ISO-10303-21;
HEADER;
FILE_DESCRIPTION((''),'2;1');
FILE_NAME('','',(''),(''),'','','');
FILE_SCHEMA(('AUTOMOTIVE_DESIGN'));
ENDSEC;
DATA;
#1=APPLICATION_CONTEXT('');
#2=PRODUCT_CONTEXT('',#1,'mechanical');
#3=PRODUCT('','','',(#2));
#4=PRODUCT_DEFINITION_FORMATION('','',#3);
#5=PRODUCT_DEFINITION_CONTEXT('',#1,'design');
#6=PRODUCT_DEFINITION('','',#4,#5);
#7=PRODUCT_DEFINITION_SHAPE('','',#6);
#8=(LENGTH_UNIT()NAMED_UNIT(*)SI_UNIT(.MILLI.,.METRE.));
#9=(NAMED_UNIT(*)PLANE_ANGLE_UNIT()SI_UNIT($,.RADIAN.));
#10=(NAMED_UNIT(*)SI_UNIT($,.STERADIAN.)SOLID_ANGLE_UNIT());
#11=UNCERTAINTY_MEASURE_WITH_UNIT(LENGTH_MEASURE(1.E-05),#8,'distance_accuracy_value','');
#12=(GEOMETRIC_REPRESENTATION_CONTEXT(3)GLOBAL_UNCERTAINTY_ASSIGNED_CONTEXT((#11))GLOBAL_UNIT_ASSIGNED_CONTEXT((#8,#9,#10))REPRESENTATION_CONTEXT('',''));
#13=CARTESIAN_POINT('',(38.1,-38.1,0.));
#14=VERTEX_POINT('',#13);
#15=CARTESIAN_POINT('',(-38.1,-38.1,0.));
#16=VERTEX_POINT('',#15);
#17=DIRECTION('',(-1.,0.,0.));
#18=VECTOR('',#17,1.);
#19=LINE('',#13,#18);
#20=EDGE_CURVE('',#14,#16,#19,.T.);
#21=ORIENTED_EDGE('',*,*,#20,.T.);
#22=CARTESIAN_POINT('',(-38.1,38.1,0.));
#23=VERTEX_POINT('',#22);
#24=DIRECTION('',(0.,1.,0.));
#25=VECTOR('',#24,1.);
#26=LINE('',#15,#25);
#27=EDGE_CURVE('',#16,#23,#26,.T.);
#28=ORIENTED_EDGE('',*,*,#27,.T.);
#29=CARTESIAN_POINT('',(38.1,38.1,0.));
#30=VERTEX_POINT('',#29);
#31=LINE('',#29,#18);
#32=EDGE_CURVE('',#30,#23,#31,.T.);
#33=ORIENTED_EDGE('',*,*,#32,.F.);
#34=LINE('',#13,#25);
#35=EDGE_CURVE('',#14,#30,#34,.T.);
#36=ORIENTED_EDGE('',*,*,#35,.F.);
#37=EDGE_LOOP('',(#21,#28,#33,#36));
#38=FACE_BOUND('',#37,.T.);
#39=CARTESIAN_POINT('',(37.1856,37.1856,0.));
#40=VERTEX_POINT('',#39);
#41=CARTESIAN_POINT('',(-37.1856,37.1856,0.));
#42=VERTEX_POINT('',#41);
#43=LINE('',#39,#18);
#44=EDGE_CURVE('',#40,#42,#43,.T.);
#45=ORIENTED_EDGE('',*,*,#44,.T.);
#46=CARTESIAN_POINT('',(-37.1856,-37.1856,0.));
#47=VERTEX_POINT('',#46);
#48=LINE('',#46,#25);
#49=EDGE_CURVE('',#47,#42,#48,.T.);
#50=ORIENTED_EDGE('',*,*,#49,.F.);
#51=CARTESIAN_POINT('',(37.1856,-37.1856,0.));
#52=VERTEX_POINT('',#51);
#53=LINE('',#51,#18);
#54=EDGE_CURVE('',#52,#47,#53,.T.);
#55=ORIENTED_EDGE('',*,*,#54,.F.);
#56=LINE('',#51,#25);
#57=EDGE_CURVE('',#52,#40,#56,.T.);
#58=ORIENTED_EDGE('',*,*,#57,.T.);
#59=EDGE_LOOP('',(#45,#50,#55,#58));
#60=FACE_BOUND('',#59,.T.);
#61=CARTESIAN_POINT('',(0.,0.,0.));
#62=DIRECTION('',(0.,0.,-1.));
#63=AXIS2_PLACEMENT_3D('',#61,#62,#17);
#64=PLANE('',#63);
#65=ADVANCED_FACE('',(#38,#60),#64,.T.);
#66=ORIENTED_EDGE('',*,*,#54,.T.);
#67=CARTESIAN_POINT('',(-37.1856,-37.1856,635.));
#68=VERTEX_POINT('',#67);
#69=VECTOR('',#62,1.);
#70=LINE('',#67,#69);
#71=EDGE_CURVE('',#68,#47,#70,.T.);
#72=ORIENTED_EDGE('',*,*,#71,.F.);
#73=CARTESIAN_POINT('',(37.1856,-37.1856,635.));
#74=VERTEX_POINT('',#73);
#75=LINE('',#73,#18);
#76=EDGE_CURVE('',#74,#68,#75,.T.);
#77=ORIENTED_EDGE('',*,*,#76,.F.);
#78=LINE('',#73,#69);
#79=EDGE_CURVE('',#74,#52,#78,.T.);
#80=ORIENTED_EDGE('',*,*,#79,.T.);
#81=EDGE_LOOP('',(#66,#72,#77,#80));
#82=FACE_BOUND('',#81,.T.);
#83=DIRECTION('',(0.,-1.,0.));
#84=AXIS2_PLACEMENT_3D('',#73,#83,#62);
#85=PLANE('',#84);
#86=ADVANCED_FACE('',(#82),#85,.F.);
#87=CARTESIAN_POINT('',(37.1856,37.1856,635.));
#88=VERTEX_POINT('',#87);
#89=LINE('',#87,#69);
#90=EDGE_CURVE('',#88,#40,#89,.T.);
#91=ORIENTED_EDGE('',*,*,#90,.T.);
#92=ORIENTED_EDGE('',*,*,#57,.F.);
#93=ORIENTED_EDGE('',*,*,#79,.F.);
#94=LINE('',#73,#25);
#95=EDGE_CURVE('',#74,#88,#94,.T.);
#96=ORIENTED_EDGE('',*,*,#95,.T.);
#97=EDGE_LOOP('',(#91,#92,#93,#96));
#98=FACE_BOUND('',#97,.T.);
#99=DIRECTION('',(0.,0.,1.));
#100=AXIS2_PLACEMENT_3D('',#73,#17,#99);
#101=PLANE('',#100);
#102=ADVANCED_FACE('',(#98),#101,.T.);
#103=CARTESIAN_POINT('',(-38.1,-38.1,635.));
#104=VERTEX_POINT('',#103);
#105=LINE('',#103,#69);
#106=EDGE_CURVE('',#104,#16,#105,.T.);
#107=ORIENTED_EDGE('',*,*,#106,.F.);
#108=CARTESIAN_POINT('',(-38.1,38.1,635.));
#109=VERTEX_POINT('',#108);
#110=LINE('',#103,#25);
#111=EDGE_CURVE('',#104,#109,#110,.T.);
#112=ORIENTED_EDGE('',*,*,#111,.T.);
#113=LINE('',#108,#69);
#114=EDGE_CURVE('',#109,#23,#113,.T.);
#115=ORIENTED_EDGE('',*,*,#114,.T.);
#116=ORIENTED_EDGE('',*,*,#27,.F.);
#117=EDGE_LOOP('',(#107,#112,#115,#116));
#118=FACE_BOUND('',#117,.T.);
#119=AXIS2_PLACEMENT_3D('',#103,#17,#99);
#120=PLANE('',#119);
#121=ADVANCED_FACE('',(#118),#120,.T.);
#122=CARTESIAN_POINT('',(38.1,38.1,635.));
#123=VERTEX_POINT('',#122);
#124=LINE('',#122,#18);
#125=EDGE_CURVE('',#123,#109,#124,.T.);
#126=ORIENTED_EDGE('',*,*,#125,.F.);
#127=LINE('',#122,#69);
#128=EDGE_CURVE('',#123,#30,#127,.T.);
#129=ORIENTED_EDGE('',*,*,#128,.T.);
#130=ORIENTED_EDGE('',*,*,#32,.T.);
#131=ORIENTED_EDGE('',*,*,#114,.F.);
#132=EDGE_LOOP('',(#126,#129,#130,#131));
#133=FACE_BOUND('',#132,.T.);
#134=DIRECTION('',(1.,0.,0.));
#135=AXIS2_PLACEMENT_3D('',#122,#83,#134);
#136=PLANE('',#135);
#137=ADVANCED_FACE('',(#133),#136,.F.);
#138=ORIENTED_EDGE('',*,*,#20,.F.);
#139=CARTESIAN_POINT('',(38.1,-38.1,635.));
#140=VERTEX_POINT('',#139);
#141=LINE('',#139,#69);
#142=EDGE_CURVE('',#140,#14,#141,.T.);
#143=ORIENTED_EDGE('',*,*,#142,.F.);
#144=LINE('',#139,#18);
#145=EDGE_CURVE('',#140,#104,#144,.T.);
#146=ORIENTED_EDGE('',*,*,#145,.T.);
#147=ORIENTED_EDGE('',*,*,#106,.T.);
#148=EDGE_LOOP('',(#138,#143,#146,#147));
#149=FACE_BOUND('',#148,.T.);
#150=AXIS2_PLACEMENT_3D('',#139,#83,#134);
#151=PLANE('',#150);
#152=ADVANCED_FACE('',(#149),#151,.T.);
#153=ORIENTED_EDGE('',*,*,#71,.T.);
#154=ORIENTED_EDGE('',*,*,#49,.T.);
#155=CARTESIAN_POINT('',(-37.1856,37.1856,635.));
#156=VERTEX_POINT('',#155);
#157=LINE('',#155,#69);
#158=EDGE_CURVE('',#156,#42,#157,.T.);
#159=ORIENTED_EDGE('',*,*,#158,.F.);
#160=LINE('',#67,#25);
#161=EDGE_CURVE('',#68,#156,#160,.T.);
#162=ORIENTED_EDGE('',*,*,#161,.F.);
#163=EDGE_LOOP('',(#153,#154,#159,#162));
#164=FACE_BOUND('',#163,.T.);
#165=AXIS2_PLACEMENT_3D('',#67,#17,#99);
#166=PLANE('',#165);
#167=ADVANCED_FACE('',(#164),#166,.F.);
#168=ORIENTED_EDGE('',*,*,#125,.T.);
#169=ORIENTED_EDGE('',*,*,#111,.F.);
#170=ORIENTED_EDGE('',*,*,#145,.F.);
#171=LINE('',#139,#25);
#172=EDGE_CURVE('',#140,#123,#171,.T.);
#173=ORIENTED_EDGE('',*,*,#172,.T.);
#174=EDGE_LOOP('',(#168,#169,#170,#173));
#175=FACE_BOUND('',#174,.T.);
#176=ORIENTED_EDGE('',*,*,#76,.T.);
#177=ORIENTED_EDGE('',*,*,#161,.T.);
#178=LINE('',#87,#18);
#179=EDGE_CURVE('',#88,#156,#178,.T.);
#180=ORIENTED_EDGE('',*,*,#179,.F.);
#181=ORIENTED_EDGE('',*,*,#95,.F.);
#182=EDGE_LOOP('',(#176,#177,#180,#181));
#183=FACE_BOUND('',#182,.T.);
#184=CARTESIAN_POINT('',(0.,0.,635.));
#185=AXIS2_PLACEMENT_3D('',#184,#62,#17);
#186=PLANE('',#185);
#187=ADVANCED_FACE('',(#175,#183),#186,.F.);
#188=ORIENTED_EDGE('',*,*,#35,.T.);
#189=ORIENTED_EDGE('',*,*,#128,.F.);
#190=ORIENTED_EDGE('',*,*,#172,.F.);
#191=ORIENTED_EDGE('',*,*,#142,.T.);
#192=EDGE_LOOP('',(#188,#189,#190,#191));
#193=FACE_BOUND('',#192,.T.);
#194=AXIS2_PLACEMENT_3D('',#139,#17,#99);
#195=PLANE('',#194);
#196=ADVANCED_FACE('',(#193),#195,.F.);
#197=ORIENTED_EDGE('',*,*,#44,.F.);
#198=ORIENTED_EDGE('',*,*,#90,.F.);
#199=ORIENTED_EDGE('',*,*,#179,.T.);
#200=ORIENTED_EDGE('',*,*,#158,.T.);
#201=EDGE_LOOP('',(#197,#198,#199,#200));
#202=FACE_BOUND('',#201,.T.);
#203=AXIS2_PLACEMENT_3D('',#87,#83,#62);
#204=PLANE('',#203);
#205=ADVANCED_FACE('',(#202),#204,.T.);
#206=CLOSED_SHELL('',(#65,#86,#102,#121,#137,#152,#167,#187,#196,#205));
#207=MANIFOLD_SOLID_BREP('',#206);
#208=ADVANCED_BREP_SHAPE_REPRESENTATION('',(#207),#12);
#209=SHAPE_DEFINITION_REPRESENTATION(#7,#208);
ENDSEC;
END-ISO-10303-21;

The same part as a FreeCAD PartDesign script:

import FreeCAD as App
import Part
import Sketcher
from FreeCAD import Vector
Q = App.Units.Quantity

doc = App.newDocument("Part")
body = doc.addObject("PartDesign::Body", "Body")

sketch1 = body.newObject("Sketcher::SketchObject", "Sketch")
sketch1.AttachmentSupport = (doc.getObject("XY_Plane"), [""])
sketch1.MapMode = "FlatFace"
sketch1.addGeometry([
    Part.LineSegment(Vector(-38, 38, 0), Vector(-38, -38, 0)),
    Part.LineSegment(Vector(-38, -38, 0), Vector(38, -38, 0)),
    Part.LineSegment(Vector(38, -38, 0), Vector(38, 38, 0)),
    Part.LineSegment(Vector(38, 38, 0), Vector(-38, 38, 0)),
    Part.LineSegment(Vector(37, -37, 0), Vector(-37, -37, 0)),
    Part.LineSegment(Vector(-37, -37, 0), Vector(-37, 37, 0)),
    Part.LineSegment(Vector(-37, 37, 0), Vector(37, 37, 0)),
    Part.LineSegment(Vector(37, 37, 0), Vector(37, -37, 0)),
], False)
sketch1.addConstraint([
    Sketcher.Constraint("Coincident", 0, 2, 1, 1),
    Sketcher.Constraint("Coincident", 1, 2, 2, 1),
    Sketcher.Constraint("Coincident", 2, 2, 3, 1),
    Sketcher.Constraint("Coincident", 3, 2, 0, 1),
    Sketcher.Constraint("Coincident", 4, 2, 5, 1),
    Sketcher.Constraint("Coincident", 5, 2, 6, 1),
    Sketcher.Constraint("Coincident", 6, 2, 7, 1),
    Sketcher.Constraint("Coincident", 7, 2, 4, 1),
    Sketcher.Constraint("Vertical", 0),
    Sketcher.Constraint("Horizontal", 1),
    Sketcher.Constraint("Vertical", 2),
    Sketcher.Constraint("Horizontal", 3),
    Sketcher.Constraint("Horizontal", 4),
    Sketcher.Constraint("Vertical", 5),
    Sketcher.Constraint("Horizontal", 6),
    Sketcher.Constraint("Vertical", 7),
    Sketcher.Constraint("Symmetric", 0, 2, 2, 2, -1, 1),
    Sketcher.Constraint("Symmetric", 4, 2, 6, 2, -1, 1),
    Sketcher.Constraint("Equal", 3, 0),
    Sketcher.Constraint("Equal", 6, 5),
    Sketcher.Constraint("DistanceX", 1, 1, 1, 2, Q("3 in")),
    Sketcher.Constraint("DistanceX", 4, 2, 4, 1, Q("2.928 in")),
])
pad1 = body.newObject("PartDesign::Pad", "Pad")
pad1.Profile = sketch1
pad1.Length = Q("25 in")

doc.recompute()
